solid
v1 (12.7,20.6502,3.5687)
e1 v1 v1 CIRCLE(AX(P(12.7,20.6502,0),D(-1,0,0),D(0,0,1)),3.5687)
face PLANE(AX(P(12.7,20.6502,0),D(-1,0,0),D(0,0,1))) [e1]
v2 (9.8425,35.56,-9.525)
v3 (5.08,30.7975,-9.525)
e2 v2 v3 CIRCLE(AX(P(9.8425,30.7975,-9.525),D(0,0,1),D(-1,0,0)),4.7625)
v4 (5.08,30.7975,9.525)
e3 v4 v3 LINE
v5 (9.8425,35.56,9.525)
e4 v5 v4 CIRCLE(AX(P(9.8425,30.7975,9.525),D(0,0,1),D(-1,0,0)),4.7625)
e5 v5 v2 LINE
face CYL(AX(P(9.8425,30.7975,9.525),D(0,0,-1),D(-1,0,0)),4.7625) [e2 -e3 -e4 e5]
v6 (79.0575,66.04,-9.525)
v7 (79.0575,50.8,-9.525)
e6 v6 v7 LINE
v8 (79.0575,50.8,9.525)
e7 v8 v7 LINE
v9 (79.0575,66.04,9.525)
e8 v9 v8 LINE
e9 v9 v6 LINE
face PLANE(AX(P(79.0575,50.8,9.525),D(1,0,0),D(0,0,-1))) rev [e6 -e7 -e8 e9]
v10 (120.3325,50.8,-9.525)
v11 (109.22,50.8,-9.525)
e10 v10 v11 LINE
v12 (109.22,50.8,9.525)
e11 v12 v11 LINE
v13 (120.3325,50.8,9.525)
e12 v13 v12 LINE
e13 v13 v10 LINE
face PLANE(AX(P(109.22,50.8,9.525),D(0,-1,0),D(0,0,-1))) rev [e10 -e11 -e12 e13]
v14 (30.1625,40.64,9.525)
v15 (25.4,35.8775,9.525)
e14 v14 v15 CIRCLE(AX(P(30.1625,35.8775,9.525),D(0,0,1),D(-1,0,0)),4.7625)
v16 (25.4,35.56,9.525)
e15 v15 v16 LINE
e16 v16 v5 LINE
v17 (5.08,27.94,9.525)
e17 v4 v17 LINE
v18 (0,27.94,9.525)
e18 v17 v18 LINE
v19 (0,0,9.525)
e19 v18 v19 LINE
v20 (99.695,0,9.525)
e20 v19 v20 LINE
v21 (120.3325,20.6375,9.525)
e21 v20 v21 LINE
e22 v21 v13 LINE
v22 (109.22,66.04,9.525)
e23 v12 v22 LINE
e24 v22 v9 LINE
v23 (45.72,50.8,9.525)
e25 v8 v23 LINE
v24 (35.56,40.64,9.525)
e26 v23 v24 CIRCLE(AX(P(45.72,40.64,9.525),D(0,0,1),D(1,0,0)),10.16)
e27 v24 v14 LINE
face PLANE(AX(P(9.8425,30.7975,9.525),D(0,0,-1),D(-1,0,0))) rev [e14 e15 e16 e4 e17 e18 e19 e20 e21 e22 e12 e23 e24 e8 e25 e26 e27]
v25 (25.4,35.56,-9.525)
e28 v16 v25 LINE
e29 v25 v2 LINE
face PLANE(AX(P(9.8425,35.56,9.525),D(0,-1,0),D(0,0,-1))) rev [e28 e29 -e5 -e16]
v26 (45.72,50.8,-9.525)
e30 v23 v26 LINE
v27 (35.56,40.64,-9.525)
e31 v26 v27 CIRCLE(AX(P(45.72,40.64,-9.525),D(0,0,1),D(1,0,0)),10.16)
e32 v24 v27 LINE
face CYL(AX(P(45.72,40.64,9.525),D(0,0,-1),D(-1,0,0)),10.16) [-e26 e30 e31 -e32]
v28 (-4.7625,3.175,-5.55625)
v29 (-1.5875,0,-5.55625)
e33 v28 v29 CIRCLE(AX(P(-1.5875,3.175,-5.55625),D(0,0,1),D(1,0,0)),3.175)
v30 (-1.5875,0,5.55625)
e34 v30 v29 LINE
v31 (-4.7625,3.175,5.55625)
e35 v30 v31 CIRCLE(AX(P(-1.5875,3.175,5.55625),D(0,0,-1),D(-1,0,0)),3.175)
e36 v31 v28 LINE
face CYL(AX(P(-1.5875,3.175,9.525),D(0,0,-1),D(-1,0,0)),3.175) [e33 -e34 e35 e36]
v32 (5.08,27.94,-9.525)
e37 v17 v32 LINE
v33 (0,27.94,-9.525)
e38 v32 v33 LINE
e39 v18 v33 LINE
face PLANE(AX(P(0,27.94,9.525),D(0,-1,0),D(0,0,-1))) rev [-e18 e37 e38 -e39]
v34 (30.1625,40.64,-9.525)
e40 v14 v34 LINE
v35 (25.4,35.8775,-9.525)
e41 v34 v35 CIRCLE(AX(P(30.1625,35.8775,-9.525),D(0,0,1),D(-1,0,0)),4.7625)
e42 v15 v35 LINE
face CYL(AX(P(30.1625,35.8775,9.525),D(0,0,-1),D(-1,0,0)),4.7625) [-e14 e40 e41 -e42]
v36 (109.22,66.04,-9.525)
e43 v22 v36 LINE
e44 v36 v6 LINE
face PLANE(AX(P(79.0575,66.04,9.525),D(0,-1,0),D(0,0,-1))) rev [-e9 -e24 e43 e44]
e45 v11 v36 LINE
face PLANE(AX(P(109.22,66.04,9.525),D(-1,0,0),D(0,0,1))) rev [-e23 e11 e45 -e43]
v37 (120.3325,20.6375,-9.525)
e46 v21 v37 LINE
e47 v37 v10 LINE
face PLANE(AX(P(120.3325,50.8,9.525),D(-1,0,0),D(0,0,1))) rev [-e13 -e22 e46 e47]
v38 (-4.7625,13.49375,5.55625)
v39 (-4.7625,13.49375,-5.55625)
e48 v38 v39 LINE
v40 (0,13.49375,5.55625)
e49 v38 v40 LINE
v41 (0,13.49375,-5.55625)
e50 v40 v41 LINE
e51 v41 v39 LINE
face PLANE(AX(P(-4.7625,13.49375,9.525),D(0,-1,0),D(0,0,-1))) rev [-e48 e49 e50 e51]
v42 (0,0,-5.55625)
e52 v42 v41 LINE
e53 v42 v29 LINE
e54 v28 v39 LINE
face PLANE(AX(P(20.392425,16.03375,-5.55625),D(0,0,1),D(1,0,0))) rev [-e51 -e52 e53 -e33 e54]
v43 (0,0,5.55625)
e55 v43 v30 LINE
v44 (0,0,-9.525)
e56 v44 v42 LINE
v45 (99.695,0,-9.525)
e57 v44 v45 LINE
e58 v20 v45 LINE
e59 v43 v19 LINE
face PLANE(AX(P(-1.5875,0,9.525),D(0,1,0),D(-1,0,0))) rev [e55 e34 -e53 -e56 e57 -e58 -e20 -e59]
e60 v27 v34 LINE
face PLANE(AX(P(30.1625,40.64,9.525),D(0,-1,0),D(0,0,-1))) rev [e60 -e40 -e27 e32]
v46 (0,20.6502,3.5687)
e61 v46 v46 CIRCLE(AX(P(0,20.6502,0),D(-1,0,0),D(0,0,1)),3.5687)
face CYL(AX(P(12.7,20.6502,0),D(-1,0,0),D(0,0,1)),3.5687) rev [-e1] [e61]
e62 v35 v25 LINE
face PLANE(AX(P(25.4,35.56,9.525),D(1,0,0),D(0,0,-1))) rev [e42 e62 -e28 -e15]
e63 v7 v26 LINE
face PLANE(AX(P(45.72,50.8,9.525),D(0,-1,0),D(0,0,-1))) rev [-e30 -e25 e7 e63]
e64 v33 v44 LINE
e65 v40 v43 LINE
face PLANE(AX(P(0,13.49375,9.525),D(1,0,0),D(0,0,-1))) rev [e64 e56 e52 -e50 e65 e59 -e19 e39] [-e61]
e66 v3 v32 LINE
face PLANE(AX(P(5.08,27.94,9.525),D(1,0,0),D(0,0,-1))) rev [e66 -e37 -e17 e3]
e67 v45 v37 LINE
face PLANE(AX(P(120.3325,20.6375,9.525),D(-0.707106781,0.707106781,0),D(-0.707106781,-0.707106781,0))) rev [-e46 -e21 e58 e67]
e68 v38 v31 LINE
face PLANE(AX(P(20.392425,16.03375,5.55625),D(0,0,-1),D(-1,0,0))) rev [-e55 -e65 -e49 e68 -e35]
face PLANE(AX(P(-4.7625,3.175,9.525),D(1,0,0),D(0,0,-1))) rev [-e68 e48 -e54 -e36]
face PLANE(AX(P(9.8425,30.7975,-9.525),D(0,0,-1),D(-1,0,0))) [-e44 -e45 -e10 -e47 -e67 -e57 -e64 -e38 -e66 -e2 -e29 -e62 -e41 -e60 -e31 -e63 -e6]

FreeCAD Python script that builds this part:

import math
import FreeCAD as App
import Part
import Sketcher
Q = App.Units.Quantity

doc = App.newDocument("Part")
body = doc.addObject("PartDesign::Body", "Body")

# Sketch on XY plane
sketch1 = body.newObject("Sketcher::SketchObject", "Sketch")
sketch1.AttachmentSupport = (doc.getObject("XY_Plane"), [""])
sketch1.MapMode = "FlatFace"
sketch1.addGeometry([
    Part.LineSegment(App.Vector(-1.59, 0, 0), App.Vector(99.69, 0, 0)),  # 0
    Part.LineSegment(App.Vector(99.69, 0, 0), App.Vector(120.33, 20.64, 0)),  # 1
    Part.LineSegment(App.Vector(120.33, 20.64, 0), App.Vector(120.33, 50.8, 0)),  # 2
    Part.LineSegment(App.Vector(120.33, 50.8, 0), App.Vector(109.22, 50.8, 0)),  # 3
    Part.LineSegment(App.Vector(109.22, 50.8, 0), App.Vector(109.22, 66.04, 0)),  # 4
    Part.LineSegment(App.Vector(109.22, 66.04, 0), App.Vector(79.06, 66.04, 0)),  # 5
    Part.LineSegment(App.Vector(79.06, 66.04, 0), App.Vector(79.06, 50.8, 0)),  # 6
    Part.LineSegment(App.Vector(79.06, 50.8, 0), App.Vector(45.72, 50.8, 0)),  # 7
    Part.ArcOfCircle(Part.Circle(App.Vector(45.72, 40.64, 0), App.Vector(0, 0, 1), 10.16), math.radians(90), math.radians(180)),  # 8
    Part.LineSegment(App.Vector(35.56, 40.64, 0), App.Vector(30.16, 40.64, 0)),  # 9
    Part.ArcOfCircle(Part.Circle(App.Vector(30.16, 35.88, 0), App.Vector(0, 0, 1), 4.76), math.radians(90), math.radians(180)),  # 10
    Part.LineSegment(App.Vector(25.4, 35.88, 0), App.Vector(25.4, 35.56, 0)),  # 11
    Part.LineSegment(App.Vector(25.4, 35.56, 0), App.Vector(9.84, 35.56, 0)),  # 12
    Part.ArcOfCircle(Part.Circle(App.Vector(9.84, 30.8, 0), App.Vector(0, 0, 1), 4.76), math.radians(90), math.radians(180)),  # 13
    Part.LineSegment(App.Vector(5.08, 30.8, 0), App.Vector(5.08, 27.94, 0)),  # 14
    Part.LineSegment(App.Vector(5.08, 27.94, 0), App.Vector(0, 27.94, 0)),  # 15
    Part.LineSegment(App.Vector(0, 27.94, 0), App.Vector(0, 13.49, 0)),  # 16
    Part.LineSegment(App.Vector(0, 13.49, 0), App.Vector(-4.76, 13.49, 0)),  # 17
    Part.LineSegment(App.Vector(-4.76, 13.49, 0), App.Vector(-4.76, 3.17, 0)),  # 18
    Part.ArcOfCircle(Part.Circle(App.Vector(-1.59, 3.18, 0), App.Vector(0, 0, 1), 3.18), math.radians(-180), math.radians(-90)),  # 19
], False)
sketch1.addConstraint([
    Sketcher.Constraint("Coincident", 0, 2, 1, 1),
    Sketcher.Constraint("Coincident", 1, 2, 2, 1),
    Sketcher.Constraint("Coincident", 2, 2, 3, 1),
    Sketcher.Constraint("Coincident", 3, 2, 4, 1),
    Sketcher.Constraint("Coincident", 4, 2, 5, 1),
    Sketcher.Constraint("Coincident", 5, 2, 6, 1),
    Sketcher.Constraint("Coincident", 6, 2, 7, 1),
    Sketcher.Constraint("Tangent", 7, 2, 8, 1),
    Sketcher.Constraint("Coincident", 8, 2, 9, 1),
    Sketcher.Constraint("Tangent", 9, 2, 10, 1),
    Sketcher.Constraint("Tangent", 10, 2, 11, 1),
    Sketcher.Constraint("Coincident", 11, 2, 12, 1),
    Sketcher.Constraint("Tangent", 12, 2, 13, 1),
    Sketcher.Constraint("Tangent", 13, 2, 14, 1),
    Sketcher.Constraint("Coincident", 14, 2, 15, 1),
    Sketcher.Constraint("Coincident", 15, 2, 16, 1),
    Sketcher.Constraint("Coincident", 16, 2, 17, 1),
    Sketcher.Constraint("Coincident", 17, 2, 18, 1),
    Sketcher.Constraint("Tangent", 18, 2, 19, 1),
    Sketcher.Constraint("Tangent", 19, 2, 0, 1),
    Sketcher.Constraint("Horizontal", 0),
    Sketcher.Constraint("Vertical", 2),
    Sketcher.Constraint("Horizontal", 3),
    Sketcher.Constraint("Vertical", 4),
    Sketcher.Constraint("Horizontal", 5),
    Sketcher.Constraint("Vertical", 6),
    Sketcher.Constraint("Horizontal", 7),
    Sketcher.Constraint("Horizontal", 9),
    Sketcher.Constraint("Vertical", 11),
    Sketcher.Constraint("Horizontal", 12),
    Sketcher.Constraint("Vertical", 14),
    Sketcher.Constraint("Horizontal", 15),
    Sketcher.Constraint("Vertical", 16),
    Sketcher.Constraint("Horizontal", 17),
    Sketcher.Constraint("Vertical", 18),
    Sketcher.Constraint("Equal", 10, 13),
    Sketcher.Constraint("PointOnObject", 0, 2, -1),
    Sketcher.Constraint("PointOnObject", 15, 2, -2),
    Sketcher.Constraint("Horizontal", 3, 2, 6, 2),
    Sketcher.Constraint("Equal", 5, 2),
    Sketcher.Constraint("Radius", 8, Q("0.4 in")),
    Sketcher.Constraint("DistanceX", 15, 2, 15, 1, Q("0.2 in")),
    Sketcher.Constraint("DistanceY", 4, 1, 4, 2, Q("0.6 in")),
    Sketcher.Constraint("DistanceY", -1, 1, 2, 2, Q("2 in")),
    Sketcher.Constraint("DistanceX", -1, 1, 10, 2, Q("1 in")),
    Sketcher.Constraint("Angle", 1, Q("45 deg")),
    Sketcher.Constraint("Radius", 10, Q("0.1875 in")),
    Sketcher.Constraint("Radius", 19, Q("0.125 in")),
    Sketcher.Constraint("DistanceX", -1, 1, 8, 3, Q("1.8 in")),
    Sketcher.Constraint("DistanceX", -1, 1, 3, 2, Q("4.3 in")),
    Sketcher.Constraint("DistanceY", -1, 1, 8, 2, Q("1.6 in")),
    Sketcher.Constraint("DistanceY", -1, 1, 11, 2, Q("1.4 in")),
    Sketcher.Constraint("DistanceY", -1, 1, 14, 2, Q("1.1 in")),
    Sketcher.Constraint("DistanceY", 1, 2, 10, 3, Q("0.6 in")),
    Sketcher.Constraint("DistanceX", 19, 3, 1, 2, Q("4.8 in")),
    Sketcher.Constraint("DistanceX", 3, 2, 3, 1, Q("0.4375 in")),
    Sketcher.Constraint("DistanceY", 18, 2, 18, 1, Q("0.40625 in")),
])
pad1 = body.newObject("PartDesign::Pad", "Pad")
pad1.Profile = sketch1
pad1.Type = "TwoLengths"
pad1.Length = Q("0.375 in")
pad1.Length2 = Q("0.375 in")
body2 = doc.addObject("PartDesign::Body", "Body001")

# Sketch on YZ plane
sketch2 = body2.newObject("Sketcher::SketchObject", "Sketch001")
sketch2.AttachmentSupport = (doc.getObject("YZ_Plane001"), [""])
sketch2.MapMode = "FlatFace"
sketch2.addGeometry(Part.Circle(App.Vector(20.7, 0, 0), App.Vector(0, 0, 1), 3.6), False)
sketch2.addConstraint([
    Sketcher.Constraint("PointOnObject", 0, 3, -1),
    Sketcher.Constraint("Diameter", 0, Q("0.281 in")),
    Sketcher.Constraint("DistanceX", -1, 1, 0, 3, Q("0.813 in")),
])
pad2 = body2.newObject("PartDesign::Pad", "Pad001")
pad2.Profile = sketch2
pad2.Length = Q("0.5 in")
doc.recompute()

boolean = body.newObject("PartDesign::Boolean", "Boolean")
boolean.Type = "Cut"
boolean.addObjects([body2])

# Sketch on YZ plane
sketch3 = body.newObject("Sketcher::SketchObject", "Sketch002")
sketch3.AttachmentSupport = (doc.getObject("YZ_Plane"), [""])
sketch3.MapMode = "FlatFace"
sketch3.AttachmentOffset = App.Placement(App.Vector(0, 0, -0.1875 * 25.4), App.Rotation())
sketch3.addGeometry([
    Part.LineSegment(App.Vector(20, -9.5, 0), App.Vector(0, -9.5, 0)),  # 0
    Part.LineSegment(App.Vector(0, -9.5, 0), App.Vector(0, -5.6, 0)),  # 1
    Part.LineSegment(App.Vector(0, -5.6, 0), App.Vector(16, -5.6, 0)),  # 2
    Part.LineSegment(App.Vector(16, -5.6, 0), App.Vector(20, -9.5, 0)),  # 3
    Part.LineSegment(App.Vector(0, 5.6, 0), App.Vector(0, 9.5, 0)),  # 4
    Part.LineSegment(App.Vector(0, 9.5, 0), App.Vector(20, 9.5, 0)),  # 5
    Part.LineSegment(App.Vector(20, 9.5, 0), App.Vector(16, 5.6, 0)),  # 6
    Part.LineSegment(App.Vector(16, 5.6, 0), App.Vector(0, 5.6, 0)),  # 7
], False)
sketch3.addConstraint([
    Sketcher.Constraint("Coincident", 0, 2, 1, 1),
    Sketcher.Constraint("Coincident", 1, 2, 2, 1),
    Sketcher.Constraint("Coincident", 2, 2, 3, 1),
    Sketcher.Constraint("Coincident", 3, 2, 0, 1),
    Sketcher.Constraint("Coincident", 4, 2, 5, 1),
    Sketcher.Constraint("Coincident", 5, 2, 6, 1),
    Sketcher.Constraint("Coincident", 6, 2, 7, 1),
    Sketcher.Constraint("Coincident", 7, 2, 4, 1),
    Sketcher.Constraint("Horizontal", 0),
    Sketcher.Constraint("Vertical", 1),
    Sketcher.Constraint("Horizontal", 2),
    Sketcher.Constraint("Vertical", 4),
    Sketcher.Constraint("Horizontal", 5),
    Sketcher.Constraint("Horizontal", 7),
    Sketcher.Constraint("Symmetric", 0, 2, 4, 2, -1, 1),
    Sketcher.Constraint("Symmetric", 2, 2, 6, 2, -1),
    Sketcher.Constraint("PointOnObject", 0, 2, -2),
    Sketcher.Constraint("Perpendicular", 3, 6),
    Sketcher.Constraint("Vertical", 3, 2, 5, 2),
    Sketcher.Constraint("DistanceY", 1, 1, 1, 2, Q("0.15625 in")),
    Sketcher.Constraint("DistanceY", 0, 2, 4, 2, Q("0.75 in")),
    Sketcher.Constraint("DistanceX", 0, 2, 0, 1, Q("0.7875 in")),
])
pocket1 = body.newObject("PartDesign::Pocket", "Pocket")
pocket1.Profile = sketch3
pocket1.Length = Q("0.1875 in")
pocket1.Reversed = True

doc.recompute()
